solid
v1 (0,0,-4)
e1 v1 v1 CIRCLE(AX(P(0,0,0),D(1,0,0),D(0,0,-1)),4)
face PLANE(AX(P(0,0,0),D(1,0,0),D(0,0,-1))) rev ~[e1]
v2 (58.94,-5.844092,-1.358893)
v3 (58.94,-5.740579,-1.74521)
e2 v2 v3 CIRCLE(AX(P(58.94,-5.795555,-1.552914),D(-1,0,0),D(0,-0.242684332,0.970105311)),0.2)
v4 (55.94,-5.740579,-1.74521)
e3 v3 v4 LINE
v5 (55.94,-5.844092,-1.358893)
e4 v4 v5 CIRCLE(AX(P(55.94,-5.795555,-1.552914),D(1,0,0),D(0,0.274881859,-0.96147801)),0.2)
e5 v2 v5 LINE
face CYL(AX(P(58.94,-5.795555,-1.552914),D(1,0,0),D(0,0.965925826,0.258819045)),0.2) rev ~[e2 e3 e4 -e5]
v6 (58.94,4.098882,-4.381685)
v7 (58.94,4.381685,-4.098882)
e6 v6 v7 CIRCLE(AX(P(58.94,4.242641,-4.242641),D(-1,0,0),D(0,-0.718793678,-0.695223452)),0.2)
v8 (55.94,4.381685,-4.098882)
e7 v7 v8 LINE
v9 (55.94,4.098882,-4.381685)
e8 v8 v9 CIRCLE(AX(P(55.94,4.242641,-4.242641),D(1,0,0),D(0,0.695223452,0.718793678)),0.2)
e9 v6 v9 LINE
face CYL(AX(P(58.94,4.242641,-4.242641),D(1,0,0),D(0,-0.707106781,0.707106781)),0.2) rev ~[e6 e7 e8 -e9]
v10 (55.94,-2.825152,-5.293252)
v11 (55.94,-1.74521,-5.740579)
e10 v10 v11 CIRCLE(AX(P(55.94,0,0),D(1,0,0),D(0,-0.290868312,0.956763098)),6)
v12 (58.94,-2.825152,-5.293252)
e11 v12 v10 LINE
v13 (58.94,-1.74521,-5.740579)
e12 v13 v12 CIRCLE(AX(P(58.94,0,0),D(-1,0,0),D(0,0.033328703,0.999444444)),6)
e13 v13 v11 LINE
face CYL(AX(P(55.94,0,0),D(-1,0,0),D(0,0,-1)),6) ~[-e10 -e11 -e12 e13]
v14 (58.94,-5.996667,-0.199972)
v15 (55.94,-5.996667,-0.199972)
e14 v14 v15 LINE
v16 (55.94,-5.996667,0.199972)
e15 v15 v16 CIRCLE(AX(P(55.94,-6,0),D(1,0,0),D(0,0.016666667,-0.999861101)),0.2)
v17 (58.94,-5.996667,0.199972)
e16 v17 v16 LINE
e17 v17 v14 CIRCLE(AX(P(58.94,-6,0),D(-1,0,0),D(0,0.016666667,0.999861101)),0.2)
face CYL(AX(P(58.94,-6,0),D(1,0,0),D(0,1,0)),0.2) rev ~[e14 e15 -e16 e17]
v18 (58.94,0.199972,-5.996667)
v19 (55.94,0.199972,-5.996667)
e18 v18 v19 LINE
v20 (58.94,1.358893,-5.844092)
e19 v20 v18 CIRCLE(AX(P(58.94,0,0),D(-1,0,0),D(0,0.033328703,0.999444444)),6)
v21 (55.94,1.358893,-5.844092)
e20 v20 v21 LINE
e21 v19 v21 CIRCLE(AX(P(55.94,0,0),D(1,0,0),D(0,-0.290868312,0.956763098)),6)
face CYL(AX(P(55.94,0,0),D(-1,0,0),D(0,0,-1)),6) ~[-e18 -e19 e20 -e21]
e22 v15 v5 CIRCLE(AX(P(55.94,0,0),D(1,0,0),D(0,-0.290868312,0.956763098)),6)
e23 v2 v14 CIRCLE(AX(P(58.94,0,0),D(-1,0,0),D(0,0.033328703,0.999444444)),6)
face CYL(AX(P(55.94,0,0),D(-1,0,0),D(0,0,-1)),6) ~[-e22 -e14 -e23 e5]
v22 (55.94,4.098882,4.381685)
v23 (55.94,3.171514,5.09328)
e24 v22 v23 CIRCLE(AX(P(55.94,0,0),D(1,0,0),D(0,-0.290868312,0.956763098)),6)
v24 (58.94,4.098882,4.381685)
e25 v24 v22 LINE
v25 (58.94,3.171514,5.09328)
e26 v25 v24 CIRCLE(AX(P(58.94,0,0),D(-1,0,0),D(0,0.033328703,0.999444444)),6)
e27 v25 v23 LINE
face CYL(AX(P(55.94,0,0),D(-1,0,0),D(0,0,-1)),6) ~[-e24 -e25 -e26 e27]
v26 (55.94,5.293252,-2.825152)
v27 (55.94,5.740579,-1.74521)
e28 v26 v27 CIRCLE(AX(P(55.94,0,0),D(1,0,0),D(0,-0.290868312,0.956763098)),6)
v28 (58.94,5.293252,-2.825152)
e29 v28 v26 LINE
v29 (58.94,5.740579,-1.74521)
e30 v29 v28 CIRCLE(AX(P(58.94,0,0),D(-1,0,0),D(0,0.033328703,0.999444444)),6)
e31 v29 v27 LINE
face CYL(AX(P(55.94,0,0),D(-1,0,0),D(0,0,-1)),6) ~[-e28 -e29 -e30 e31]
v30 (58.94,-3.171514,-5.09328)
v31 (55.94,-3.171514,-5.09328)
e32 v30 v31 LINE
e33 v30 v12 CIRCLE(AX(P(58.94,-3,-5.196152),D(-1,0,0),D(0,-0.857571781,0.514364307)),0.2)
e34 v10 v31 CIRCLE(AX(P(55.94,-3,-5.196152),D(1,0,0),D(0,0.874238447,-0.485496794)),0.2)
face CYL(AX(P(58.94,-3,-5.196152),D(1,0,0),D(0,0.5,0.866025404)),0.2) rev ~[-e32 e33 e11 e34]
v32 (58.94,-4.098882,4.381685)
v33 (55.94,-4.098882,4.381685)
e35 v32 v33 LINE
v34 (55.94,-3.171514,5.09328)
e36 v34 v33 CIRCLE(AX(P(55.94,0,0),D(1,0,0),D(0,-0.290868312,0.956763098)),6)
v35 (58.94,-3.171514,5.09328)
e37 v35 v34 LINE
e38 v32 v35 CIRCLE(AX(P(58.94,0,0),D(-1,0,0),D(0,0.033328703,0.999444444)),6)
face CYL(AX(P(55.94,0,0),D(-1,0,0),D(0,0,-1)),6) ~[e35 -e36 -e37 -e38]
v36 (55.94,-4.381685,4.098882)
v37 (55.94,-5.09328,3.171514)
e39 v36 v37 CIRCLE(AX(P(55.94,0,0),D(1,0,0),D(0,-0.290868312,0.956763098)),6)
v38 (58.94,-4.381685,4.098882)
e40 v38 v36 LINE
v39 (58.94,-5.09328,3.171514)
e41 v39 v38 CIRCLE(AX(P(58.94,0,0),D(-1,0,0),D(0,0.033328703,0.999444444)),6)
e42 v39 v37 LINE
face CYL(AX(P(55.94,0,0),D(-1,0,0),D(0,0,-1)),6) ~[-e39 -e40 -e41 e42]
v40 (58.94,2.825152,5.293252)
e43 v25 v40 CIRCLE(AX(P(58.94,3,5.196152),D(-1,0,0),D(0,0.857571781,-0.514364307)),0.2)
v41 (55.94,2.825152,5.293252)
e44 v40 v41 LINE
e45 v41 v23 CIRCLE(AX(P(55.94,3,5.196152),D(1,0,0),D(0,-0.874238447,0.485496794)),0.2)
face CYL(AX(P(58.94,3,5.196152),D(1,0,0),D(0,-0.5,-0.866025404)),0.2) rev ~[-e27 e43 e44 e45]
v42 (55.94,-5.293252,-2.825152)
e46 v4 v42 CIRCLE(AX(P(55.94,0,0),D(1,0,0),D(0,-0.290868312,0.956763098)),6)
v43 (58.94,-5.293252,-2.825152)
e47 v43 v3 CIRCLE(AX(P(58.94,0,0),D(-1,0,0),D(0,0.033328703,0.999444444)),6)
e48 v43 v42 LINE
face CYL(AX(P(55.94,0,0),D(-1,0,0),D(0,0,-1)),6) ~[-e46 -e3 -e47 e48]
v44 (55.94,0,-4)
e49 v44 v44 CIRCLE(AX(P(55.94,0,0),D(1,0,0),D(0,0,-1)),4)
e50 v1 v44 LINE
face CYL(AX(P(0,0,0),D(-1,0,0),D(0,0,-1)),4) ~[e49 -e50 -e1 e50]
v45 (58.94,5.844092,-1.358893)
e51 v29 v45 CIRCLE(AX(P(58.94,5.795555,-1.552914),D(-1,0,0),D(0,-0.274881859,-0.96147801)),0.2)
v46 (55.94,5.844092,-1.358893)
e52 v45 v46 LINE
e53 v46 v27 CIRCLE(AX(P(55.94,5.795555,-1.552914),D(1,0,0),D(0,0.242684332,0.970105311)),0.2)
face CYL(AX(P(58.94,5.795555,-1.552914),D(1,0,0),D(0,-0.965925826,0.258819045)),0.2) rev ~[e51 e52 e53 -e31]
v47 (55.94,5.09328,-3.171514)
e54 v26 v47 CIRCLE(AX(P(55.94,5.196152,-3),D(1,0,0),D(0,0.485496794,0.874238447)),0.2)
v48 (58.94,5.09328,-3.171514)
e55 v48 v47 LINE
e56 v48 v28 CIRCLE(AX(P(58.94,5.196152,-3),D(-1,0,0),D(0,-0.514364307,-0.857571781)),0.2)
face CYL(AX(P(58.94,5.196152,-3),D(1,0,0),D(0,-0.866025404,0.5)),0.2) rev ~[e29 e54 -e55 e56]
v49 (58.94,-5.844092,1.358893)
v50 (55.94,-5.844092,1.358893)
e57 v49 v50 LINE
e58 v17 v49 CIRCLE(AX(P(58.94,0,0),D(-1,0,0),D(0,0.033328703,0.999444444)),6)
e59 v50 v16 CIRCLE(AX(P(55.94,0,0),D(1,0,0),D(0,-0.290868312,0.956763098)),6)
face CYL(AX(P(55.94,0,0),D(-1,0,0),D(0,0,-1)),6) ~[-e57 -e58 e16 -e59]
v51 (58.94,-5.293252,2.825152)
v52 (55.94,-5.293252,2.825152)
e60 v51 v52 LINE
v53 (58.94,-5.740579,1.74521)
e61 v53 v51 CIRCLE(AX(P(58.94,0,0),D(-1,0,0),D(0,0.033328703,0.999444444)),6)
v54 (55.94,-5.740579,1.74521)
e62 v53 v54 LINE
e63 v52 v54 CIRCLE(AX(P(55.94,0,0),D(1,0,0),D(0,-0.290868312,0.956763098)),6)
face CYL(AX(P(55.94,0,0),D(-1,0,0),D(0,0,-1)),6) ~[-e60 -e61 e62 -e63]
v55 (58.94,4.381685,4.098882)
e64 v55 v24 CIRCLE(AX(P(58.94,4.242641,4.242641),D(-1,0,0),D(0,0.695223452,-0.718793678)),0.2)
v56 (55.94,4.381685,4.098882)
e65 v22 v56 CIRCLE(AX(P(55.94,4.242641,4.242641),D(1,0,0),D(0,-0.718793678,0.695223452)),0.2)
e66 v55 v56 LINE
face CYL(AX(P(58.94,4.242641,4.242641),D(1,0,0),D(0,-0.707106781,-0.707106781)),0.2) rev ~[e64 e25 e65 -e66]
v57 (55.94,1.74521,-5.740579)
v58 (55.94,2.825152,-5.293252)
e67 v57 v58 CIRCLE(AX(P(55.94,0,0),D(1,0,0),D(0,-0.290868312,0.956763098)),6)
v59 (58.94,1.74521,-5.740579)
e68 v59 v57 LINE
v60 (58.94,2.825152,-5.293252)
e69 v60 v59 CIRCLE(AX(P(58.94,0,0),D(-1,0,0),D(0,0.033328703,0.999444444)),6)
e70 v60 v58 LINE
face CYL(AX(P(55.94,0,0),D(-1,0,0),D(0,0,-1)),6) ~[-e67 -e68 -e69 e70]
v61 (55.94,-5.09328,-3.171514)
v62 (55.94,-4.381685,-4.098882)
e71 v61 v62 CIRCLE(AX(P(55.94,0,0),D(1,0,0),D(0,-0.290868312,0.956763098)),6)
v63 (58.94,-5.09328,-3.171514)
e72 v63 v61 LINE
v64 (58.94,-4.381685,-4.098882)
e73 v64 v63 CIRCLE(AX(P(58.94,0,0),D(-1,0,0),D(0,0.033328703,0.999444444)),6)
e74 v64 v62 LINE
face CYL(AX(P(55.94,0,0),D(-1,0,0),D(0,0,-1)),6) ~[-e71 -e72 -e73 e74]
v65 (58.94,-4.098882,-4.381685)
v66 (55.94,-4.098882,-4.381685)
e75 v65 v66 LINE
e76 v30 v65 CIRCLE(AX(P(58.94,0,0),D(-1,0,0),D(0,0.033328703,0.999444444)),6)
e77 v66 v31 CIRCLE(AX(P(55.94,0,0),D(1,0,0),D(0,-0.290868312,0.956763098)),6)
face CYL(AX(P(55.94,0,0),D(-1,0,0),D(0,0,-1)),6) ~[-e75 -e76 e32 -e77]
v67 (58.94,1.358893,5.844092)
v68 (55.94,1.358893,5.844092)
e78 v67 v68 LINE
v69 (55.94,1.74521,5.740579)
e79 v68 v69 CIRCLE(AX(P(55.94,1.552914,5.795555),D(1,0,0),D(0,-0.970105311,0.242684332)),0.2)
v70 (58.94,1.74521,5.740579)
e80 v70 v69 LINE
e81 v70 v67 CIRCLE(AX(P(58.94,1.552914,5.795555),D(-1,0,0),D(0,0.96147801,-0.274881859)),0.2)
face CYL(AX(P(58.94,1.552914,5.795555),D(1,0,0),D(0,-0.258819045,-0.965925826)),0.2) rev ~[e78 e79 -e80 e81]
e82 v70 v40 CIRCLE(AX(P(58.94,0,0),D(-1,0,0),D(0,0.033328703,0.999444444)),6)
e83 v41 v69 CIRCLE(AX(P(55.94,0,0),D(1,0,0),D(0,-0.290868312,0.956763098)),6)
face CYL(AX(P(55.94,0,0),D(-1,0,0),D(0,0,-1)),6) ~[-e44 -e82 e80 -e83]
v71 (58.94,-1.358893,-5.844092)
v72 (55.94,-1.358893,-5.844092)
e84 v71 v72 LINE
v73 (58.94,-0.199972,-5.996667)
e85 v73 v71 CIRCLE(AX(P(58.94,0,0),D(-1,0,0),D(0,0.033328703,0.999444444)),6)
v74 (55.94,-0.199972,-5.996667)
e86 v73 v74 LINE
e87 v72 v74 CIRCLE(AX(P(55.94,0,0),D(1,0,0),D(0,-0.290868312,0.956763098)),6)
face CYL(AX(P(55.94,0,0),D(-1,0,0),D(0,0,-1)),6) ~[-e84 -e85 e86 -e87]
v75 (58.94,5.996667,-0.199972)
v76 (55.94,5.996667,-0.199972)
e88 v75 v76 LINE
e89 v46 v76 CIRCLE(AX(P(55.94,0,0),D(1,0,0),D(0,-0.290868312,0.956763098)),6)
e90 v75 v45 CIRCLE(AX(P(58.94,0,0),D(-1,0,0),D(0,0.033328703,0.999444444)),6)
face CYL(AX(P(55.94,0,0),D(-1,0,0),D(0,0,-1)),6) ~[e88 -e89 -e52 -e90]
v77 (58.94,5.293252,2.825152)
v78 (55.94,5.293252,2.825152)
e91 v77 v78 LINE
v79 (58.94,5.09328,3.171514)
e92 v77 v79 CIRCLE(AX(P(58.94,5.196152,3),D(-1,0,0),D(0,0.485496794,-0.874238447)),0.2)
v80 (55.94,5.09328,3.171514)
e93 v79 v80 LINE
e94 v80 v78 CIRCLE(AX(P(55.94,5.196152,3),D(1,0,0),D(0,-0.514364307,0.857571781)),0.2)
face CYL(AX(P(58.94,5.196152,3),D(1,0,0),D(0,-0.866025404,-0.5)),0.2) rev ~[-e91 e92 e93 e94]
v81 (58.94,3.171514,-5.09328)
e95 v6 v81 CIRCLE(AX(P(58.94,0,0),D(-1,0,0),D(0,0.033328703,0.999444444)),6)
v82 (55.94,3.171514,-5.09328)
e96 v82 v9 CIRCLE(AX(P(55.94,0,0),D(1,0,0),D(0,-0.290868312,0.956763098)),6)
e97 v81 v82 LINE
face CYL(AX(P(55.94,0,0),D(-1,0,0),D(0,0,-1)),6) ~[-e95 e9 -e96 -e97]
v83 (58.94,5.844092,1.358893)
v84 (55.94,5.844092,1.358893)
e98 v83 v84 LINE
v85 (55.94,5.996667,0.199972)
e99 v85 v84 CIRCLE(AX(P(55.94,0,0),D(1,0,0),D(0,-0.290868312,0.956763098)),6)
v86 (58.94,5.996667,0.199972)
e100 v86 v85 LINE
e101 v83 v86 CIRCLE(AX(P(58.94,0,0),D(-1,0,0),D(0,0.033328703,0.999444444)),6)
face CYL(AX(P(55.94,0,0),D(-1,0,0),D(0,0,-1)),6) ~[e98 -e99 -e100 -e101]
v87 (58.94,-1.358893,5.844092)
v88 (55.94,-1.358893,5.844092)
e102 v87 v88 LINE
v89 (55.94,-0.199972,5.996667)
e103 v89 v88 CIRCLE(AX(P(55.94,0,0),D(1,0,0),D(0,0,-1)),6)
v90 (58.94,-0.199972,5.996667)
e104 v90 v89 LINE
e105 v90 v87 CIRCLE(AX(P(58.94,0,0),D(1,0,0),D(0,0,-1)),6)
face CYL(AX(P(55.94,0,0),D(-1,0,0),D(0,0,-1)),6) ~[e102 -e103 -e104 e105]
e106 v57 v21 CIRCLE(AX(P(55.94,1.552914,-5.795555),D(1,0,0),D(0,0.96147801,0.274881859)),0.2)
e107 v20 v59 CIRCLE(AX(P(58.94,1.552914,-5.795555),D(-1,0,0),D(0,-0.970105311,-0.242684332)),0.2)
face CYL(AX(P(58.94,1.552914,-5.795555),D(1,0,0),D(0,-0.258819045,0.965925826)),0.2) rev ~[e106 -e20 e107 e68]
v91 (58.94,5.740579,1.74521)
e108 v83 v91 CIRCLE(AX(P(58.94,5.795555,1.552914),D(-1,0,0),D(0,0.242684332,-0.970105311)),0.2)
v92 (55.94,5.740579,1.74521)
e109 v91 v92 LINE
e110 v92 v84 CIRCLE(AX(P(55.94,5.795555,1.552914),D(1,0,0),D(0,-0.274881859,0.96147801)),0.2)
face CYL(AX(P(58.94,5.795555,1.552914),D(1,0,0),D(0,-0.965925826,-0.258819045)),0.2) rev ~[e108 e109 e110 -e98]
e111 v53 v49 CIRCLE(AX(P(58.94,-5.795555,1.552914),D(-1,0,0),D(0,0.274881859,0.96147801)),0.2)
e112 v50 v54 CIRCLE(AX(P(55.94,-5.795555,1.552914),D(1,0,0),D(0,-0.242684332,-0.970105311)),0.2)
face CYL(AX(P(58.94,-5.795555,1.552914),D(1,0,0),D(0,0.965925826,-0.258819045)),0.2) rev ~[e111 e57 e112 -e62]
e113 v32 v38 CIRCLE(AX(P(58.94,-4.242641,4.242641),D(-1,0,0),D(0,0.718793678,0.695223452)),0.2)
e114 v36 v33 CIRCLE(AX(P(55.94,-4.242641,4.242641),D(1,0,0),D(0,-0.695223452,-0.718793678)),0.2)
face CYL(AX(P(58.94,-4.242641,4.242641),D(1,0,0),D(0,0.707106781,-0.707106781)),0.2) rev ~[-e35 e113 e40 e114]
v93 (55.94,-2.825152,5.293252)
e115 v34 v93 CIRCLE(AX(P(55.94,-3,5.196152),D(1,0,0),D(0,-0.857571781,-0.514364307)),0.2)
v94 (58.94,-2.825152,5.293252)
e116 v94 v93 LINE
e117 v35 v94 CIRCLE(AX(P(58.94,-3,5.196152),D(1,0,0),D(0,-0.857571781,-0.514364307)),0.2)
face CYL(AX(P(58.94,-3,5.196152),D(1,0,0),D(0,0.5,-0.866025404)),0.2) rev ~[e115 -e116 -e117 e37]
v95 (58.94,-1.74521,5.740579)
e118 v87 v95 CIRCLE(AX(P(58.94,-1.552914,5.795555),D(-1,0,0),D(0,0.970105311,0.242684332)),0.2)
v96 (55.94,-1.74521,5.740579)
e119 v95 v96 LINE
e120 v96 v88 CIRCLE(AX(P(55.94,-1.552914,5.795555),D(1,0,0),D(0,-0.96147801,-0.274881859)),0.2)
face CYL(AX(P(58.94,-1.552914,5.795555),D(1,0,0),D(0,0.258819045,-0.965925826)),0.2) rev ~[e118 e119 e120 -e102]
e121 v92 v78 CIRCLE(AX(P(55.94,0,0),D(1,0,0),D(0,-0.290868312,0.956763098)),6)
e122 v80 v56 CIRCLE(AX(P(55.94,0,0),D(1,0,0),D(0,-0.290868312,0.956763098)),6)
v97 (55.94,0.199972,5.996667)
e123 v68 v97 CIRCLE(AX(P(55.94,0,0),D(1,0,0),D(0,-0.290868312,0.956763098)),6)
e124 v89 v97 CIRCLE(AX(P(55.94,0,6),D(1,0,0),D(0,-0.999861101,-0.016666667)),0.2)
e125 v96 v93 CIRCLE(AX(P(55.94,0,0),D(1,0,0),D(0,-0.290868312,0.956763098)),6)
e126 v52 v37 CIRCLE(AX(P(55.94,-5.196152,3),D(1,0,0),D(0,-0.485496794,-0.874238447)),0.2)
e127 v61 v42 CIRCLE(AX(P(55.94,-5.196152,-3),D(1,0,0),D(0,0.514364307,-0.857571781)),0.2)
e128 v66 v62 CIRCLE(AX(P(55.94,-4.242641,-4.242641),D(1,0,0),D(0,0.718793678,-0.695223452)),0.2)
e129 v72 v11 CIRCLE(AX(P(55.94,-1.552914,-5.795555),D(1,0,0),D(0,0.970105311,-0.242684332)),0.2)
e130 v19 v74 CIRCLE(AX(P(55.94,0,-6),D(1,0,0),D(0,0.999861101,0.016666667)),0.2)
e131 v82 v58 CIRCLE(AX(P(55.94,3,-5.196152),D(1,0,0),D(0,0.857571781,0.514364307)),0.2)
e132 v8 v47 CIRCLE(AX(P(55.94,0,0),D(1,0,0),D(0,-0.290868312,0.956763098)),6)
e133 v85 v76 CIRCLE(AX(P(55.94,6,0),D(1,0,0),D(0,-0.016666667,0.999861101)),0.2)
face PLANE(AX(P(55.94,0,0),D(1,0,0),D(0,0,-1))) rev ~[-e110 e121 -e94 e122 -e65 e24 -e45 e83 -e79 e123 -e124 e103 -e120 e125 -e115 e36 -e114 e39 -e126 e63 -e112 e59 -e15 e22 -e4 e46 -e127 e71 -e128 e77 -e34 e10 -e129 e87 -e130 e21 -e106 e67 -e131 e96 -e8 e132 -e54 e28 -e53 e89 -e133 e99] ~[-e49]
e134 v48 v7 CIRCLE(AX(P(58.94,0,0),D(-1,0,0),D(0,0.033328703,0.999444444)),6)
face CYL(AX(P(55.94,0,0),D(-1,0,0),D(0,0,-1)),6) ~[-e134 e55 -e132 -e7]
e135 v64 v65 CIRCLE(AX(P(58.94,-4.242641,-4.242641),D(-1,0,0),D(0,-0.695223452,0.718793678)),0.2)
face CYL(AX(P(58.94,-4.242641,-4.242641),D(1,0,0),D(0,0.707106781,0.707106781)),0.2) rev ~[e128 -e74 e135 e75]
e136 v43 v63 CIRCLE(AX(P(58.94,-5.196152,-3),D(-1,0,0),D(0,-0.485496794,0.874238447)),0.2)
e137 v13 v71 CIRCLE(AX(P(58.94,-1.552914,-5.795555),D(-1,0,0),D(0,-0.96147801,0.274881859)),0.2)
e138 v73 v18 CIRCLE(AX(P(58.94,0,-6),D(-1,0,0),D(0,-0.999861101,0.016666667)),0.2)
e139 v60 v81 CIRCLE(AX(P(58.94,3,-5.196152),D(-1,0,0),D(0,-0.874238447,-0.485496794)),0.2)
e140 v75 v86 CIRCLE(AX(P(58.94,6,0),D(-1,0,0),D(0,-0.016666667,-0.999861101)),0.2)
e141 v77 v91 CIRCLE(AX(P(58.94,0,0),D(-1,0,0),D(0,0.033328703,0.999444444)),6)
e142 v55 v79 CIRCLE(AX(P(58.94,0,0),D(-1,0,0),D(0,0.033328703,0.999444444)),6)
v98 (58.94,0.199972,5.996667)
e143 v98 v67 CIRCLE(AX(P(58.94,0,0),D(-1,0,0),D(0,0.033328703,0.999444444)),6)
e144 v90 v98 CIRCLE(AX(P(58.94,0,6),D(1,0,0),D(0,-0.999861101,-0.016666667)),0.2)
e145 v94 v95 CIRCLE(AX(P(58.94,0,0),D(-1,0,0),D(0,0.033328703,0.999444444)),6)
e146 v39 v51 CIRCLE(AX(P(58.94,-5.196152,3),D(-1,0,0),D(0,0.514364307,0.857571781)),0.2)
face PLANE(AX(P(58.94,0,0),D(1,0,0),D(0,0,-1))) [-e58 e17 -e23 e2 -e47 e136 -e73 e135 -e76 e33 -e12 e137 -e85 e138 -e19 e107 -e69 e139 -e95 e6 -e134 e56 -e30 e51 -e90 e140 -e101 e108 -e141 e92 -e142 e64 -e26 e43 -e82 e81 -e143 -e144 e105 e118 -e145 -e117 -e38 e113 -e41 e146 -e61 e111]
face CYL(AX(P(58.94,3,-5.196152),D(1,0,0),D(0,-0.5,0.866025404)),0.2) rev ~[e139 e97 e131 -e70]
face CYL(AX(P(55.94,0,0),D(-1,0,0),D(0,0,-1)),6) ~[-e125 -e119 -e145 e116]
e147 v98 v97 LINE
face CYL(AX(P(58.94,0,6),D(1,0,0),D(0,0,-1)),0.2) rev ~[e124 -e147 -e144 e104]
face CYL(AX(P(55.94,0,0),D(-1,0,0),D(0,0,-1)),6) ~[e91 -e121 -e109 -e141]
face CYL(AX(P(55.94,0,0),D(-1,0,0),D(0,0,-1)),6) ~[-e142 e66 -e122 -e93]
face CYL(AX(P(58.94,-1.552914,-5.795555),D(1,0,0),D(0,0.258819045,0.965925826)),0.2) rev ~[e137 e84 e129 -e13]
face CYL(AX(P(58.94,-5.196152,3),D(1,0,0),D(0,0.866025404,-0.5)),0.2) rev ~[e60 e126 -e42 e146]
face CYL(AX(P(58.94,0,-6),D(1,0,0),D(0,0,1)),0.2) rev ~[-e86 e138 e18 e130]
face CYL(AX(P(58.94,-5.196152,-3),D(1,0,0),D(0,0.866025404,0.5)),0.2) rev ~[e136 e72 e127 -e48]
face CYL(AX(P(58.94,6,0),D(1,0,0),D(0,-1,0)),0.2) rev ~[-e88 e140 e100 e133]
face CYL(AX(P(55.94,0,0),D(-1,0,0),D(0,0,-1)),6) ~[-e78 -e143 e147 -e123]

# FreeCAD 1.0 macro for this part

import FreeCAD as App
import Part
import Sketcher

doc = App.newDocument("Part")
body = doc.addObject("PartDesign::Body", "Body")

# Sketch on YZ plane
sketch1 = doc.addObject("Sketcher::SketchObject", "Sketch")
body.addObject(sketch1)
sketch1.AttachmentSupport = (doc.YZ_Plane, [""])
sketch1.MapMode = "FlatFace"
sketch1.addGeometry(Part.Circle(App.Vector(0, 0, 0), App.Vector(0, 0, 1), 4), False)
sketch1.addConstraint([
    Sketcher.Constraint("Coincident", 0, 3, -1, 1),
    Sketcher.Constraint("Diameter", 0, 8.0),
])
pad1 = doc.addObject("PartDesign::Pad", "Pad")
body.addObject(pad1)
pad1.Profile = sketch1
pad1.Length = 55.94

# Sketch on YZ plane
sketch2 = doc.addObject("Sketcher::SketchObject", "Sketch001")
body.addObject(sketch2)
sketch2.AttachmentSupport = (doc.YZ_Plane, [""])
sketch2.MapMode = "FlatFace"
sketch2.AttachmentOffset = App.Placement(App.Vector(0, 0, 55.94), App.Rotation())
sketch2.addGeometry(Part.Circle(App.Vector(0, 0, 0), App.Vector(0, 0, 1), 6), False)
sketch2.addConstraint([
    Sketcher.Constraint("Coincident", 0, 3, -1, 1),
    Sketcher.Constraint("Diameter", 0, 12.0),
])
pad2 = doc.addObject("PartDesign::Pad", "Pad001")
body.addObject(pad2)
pad2.Profile = sketch2
pad2.Length = 3

# Sketch on YZ plane
sketch3 = doc.addObject("Sketcher::SketchObject", "Sketch002")
body.addObject(sketch3)
sketch3.AttachmentSupport = (doc.YZ_Plane, [""])
sketch3.MapMode = "FlatFace"
sketch3.AttachmentOffset = App.Placement(App.Vector(0, 0, 58.94), App.Rotation())
sketch3.addGeometry(Part.Circle(App.Vector(0, 6, 0), App.Vector(0, 0, 1), 0.2), False)
sketch3.addConstraint([
    Sketcher.Constraint("PointOnObject", 0, 3, -2),
    Sketcher.Constraint("Diameter", 0, 0.4),
    Sketcher.Constraint("DistanceY", -1, 1, 0, 3, 6.0),
])
pocket1 = doc.addObject("PartDesign::Pocket", "Pocket")
body.addObject(pocket1)
pocket1.Profile = sketch3
pocket1.Length = 3
doc.recompute()

polarpattern = doc.addObject("PartDesign::PolarPattern", "PolarPattern")
body.addObject(polarpattern)
polarpattern.Originals = [pocket1]
polarpattern.Axis = (doc.X_Axis, [""])
polarpattern.Angle = 360
polarpattern.Occurrences = 24
body.Tip = polarpattern

doc.recompute()
